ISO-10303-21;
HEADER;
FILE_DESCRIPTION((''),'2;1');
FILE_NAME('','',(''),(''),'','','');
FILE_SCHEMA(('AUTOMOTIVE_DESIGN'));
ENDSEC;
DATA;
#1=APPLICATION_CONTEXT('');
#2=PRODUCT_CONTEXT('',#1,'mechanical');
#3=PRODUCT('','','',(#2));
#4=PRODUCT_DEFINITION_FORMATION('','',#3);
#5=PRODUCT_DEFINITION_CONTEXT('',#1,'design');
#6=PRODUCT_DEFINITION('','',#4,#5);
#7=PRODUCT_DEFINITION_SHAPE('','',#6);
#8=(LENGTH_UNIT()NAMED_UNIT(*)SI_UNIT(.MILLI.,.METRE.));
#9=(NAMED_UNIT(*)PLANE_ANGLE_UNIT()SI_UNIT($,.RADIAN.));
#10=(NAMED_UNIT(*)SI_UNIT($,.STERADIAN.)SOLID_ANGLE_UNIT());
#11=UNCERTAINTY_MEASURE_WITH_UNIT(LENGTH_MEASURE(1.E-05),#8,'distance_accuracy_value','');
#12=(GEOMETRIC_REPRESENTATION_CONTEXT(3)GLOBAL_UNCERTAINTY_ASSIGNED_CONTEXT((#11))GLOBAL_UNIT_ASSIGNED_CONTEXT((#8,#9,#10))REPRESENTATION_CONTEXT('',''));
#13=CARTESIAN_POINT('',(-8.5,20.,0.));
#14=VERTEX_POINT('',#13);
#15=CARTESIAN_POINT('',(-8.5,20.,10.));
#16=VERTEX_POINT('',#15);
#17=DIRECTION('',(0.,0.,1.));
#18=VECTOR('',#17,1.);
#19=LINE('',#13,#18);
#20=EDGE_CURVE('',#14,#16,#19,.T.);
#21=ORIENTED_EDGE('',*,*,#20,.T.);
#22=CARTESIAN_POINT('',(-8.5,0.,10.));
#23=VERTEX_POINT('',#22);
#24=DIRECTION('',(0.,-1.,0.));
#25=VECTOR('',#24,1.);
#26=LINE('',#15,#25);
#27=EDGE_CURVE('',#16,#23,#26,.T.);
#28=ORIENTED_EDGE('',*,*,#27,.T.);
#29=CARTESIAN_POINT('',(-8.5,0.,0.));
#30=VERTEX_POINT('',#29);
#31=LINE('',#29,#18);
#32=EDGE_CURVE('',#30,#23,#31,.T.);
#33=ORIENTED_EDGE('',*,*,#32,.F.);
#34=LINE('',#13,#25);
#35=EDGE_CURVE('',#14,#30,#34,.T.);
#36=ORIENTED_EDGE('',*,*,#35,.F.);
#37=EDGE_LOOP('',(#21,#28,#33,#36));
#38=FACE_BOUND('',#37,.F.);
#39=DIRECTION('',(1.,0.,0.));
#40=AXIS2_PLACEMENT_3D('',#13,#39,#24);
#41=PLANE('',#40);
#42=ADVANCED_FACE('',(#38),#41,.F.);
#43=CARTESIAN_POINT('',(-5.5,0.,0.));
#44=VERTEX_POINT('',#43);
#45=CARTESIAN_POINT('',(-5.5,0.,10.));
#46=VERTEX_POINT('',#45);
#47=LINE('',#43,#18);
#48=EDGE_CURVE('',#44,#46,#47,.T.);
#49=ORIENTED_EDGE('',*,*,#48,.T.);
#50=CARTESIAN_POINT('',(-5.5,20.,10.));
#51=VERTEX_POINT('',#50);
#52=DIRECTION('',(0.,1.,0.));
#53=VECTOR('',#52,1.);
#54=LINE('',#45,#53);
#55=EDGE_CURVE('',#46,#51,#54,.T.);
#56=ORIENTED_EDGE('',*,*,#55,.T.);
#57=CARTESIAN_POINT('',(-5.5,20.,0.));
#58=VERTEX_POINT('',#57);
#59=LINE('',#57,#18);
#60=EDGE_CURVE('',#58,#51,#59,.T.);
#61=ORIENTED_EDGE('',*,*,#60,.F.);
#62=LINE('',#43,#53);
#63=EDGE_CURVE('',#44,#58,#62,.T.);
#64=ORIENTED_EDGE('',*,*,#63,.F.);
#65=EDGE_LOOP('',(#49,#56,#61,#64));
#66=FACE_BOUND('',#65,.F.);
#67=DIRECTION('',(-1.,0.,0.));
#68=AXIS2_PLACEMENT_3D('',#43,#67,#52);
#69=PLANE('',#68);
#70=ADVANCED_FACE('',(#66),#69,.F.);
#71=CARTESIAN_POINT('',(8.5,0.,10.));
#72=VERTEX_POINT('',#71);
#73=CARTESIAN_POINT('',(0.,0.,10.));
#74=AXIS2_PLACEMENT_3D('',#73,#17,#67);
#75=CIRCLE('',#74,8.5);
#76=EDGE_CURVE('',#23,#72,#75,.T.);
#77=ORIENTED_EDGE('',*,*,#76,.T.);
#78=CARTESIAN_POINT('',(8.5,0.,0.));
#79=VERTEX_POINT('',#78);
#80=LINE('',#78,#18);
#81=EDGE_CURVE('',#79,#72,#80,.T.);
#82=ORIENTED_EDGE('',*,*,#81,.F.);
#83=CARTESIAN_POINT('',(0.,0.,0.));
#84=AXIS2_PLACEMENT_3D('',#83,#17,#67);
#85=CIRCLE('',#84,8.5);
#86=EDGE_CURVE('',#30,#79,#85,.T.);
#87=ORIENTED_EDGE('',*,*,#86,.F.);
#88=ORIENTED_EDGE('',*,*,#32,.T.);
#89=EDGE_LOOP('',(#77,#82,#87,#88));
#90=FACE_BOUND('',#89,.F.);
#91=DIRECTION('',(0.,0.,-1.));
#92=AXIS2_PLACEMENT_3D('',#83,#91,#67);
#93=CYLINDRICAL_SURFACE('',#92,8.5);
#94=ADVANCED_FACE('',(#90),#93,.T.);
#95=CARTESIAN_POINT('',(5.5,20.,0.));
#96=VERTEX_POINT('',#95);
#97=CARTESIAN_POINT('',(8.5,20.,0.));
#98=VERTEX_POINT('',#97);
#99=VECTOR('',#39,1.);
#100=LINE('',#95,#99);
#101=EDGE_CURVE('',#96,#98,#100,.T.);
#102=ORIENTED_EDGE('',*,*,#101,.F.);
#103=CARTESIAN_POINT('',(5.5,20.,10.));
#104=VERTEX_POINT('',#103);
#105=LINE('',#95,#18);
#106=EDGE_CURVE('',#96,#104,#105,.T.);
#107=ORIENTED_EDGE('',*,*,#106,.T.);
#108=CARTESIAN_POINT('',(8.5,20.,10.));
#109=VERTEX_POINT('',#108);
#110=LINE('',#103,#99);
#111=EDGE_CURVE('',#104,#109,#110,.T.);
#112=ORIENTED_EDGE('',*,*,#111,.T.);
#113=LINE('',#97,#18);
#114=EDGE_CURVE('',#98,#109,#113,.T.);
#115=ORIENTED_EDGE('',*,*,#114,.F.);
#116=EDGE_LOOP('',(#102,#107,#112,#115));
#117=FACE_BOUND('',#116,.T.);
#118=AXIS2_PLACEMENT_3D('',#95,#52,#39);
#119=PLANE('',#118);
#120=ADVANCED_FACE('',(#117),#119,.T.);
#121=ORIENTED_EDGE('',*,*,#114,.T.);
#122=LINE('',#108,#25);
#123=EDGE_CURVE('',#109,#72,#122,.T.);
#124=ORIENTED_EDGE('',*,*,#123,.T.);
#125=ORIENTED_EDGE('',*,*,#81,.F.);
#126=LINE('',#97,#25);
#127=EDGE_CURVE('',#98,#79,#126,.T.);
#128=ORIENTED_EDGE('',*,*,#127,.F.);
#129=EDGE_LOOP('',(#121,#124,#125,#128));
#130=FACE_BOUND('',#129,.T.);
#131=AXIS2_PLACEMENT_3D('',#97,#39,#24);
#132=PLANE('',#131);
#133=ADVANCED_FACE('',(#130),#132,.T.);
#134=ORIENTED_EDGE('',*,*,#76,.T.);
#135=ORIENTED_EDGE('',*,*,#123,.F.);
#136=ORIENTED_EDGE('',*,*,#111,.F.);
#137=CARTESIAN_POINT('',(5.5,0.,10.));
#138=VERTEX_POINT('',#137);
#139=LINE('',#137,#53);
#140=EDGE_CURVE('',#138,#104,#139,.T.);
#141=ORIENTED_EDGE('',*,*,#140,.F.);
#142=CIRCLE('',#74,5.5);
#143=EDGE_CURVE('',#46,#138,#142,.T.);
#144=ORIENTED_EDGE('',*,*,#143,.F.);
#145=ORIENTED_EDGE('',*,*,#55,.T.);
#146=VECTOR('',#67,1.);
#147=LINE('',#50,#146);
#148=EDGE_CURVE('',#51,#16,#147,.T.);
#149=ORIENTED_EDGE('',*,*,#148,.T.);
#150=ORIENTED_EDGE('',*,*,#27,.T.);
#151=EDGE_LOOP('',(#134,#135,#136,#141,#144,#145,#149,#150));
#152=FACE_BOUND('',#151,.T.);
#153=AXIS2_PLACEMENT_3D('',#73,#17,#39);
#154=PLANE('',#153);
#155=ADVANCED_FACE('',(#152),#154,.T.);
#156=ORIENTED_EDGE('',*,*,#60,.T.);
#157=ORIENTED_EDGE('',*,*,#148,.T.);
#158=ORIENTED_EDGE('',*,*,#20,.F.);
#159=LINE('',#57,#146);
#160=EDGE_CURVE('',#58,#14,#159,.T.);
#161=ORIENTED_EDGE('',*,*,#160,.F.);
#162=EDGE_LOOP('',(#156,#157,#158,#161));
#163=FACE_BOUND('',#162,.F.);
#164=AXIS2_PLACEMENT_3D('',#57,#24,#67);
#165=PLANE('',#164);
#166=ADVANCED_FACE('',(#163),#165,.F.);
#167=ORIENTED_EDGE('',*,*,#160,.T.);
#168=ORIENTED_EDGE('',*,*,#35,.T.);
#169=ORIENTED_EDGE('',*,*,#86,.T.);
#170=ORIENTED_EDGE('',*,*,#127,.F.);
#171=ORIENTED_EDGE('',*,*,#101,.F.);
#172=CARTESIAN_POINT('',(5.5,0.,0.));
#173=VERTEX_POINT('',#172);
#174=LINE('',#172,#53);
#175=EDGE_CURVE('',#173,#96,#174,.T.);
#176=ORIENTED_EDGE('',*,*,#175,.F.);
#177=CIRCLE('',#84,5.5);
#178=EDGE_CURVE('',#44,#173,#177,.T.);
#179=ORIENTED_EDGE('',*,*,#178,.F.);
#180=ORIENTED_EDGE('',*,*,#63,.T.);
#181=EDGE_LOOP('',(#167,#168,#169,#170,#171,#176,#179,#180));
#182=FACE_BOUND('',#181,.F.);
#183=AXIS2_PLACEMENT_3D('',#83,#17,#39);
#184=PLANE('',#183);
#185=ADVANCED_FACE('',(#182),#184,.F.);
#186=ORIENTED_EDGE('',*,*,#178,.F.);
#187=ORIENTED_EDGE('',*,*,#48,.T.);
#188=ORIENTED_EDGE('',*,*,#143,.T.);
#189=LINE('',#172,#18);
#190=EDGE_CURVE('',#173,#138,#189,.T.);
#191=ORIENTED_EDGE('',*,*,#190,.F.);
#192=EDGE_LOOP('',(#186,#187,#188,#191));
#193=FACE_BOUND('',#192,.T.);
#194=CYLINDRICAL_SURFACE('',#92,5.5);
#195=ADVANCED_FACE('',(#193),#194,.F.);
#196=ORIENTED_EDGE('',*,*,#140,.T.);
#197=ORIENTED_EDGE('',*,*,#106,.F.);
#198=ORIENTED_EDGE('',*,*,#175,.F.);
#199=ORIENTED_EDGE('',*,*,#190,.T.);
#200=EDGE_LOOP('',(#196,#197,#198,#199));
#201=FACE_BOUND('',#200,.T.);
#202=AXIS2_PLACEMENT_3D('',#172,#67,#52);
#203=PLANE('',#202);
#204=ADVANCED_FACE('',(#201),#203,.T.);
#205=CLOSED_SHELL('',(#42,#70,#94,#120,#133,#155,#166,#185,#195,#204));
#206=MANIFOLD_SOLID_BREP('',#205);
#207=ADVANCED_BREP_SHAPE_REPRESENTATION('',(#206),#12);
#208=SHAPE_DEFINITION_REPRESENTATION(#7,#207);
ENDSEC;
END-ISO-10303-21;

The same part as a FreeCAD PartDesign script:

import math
import FreeCAD as App
import Part
import Sketcher

doc = App.newDocument("Part")
body = doc.addObject("PartDesign::Body", "Body")

sketch1 = body.newObject("Sketcher::SketchObject", "Sketch")
sketch1.AttachmentSupport = (doc.getObject("XY_Plane"), [""])
sketch1.MapMode = "FlatFace"
sketch1.addGeometry([
    Part.LineSegment(App.Vector(-8.5, 20, 0), App.Vector(-8.5, 0, 0)),
    Part.ArcOfCircle(Part.Circle(App.Vector(0, 0, 0), App.Vector(0, 0, 1), 8.5), math.radians(180), math.radians(360)),
    Part.LineSegment(App.Vector(8.5, 0, 0), App.Vector(8.5, 20, 0)),
    Part.LineSegment(App.Vector(8.5, 20, 0), App.Vector(5.5, 20, 0)),
    Part.LineSegment(App.Vector(5.5, 20, 0), App.Vector(5.5, 0, 0)),
    Part.ArcOfCircle(Part.Circle(App.Vector(0, 0, 0), App.Vector(0, 0, 1), 5.5), math.radians(180), math.radians(360)),
    Part.LineSegment(App.Vector(-5.5, 0, 0), App.Vector(-5.5, 20, 0)),
    Part.LineSegment(App.Vector(-5.5, 20, 0), App.Vector(-8.5, 20, 0)),
], False)
sketch1.addConstraint([
    Sketcher.Constraint("Tangent", 0, 2, 1, 1),
    Sketcher.Constraint("Tangent", 1, 2, 2, 1),
    Sketcher.Constraint("Coincident", 2, 2, 3, 1),
    Sketcher.Constraint("Coincident", 3, 2, 4, 1),
    Sketcher.Constraint("Tangent", 4, 2, 5, 2),
    Sketcher.Constraint("Tangent", 5, 1, 6, 1),
    Sketcher.Constraint("Coincident", 6, 2, 7, 1),
    Sketcher.Constraint("Coincident", 7, 2, 0, 1),
    Sketcher.Constraint("Vertical", 0),
    Sketcher.Constraint("Vertical", 2),
    Sketcher.Constraint("Horizontal", 3),
    Sketcher.Constraint("Vertical", 4),
    Sketcher.Constraint("Vertical", 6),
    Sketcher.Constraint("Horizontal", 7),
    Sketcher.Constraint("Coincident", 1, 3, -1, 1),
    Sketcher.Constraint("Coincident", 5, 3, -1, 1),
    Sketcher.Constraint("Horizontal", 3, 2, 6, 2),
    Sketcher.Constraint("Radius", 5, 5.5),
    Sketcher.Constraint("DistanceX", 3, 2, 3, 1, 3.0),
    Sketcher.Constraint("DistanceY", 0, 2, 0, 1, 20.0),
])
pad1 = body.newObject("PartDesign::Pad", "Pad")
pad1.Profile = sketch1
pad1.Length = 10

doc.recompute()
